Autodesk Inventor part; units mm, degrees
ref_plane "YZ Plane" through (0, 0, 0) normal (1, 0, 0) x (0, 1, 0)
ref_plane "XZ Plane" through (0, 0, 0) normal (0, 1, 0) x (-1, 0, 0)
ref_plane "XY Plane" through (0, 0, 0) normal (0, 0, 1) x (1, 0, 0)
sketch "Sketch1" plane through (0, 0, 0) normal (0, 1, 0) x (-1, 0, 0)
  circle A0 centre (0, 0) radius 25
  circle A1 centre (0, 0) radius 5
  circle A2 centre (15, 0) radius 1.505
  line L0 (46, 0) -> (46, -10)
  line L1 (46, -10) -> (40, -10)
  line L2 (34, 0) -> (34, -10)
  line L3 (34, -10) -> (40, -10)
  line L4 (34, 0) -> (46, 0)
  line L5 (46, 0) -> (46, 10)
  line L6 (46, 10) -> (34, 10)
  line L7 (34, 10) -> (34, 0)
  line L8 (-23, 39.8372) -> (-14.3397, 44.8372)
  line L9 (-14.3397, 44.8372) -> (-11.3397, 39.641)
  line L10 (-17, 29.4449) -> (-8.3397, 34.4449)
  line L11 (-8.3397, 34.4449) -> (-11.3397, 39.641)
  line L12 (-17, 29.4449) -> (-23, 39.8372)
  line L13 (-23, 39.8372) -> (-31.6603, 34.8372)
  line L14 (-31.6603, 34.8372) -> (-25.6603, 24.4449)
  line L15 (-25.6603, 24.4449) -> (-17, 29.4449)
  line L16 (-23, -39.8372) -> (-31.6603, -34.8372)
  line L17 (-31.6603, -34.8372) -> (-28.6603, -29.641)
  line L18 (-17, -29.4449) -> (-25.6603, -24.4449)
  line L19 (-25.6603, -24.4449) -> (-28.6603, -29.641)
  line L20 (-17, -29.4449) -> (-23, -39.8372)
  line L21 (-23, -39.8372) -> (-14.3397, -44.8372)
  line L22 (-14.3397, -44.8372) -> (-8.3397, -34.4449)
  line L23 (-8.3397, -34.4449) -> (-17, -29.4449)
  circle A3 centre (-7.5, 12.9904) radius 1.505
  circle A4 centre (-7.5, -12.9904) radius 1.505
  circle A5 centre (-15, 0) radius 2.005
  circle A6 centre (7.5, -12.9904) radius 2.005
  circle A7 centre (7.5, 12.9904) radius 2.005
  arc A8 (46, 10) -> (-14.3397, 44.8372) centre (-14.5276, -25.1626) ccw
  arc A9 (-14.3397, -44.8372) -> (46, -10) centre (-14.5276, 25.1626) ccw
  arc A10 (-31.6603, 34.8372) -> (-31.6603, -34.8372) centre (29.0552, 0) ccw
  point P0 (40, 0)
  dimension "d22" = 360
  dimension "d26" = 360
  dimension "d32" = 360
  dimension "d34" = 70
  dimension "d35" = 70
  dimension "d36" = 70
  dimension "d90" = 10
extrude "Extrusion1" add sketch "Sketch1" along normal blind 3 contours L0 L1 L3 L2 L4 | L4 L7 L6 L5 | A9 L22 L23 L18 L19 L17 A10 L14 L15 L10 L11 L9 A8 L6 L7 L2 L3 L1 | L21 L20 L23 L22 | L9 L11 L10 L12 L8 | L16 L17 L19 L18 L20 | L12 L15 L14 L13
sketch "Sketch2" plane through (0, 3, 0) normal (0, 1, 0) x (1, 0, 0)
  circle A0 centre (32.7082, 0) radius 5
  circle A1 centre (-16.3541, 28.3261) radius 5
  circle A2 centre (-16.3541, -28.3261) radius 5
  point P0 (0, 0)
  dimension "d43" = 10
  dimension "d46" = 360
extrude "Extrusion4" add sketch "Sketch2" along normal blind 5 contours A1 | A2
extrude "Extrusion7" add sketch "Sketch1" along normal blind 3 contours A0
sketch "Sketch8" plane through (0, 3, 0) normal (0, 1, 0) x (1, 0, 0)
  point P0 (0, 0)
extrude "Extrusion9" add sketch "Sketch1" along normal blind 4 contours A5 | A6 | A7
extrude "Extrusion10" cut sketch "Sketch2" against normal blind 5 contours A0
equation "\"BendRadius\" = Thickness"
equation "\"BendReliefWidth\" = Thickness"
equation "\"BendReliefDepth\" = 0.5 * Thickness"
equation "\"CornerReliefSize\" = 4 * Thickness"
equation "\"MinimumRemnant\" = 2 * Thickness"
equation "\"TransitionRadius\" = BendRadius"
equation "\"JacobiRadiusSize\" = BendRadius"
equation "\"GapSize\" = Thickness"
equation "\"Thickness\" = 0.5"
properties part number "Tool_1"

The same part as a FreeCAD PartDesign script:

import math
import FreeCAD as App
import Part
import Sketcher
Q = App.Units.Quantity

doc = App.newDocument("Part")
params = doc.addObject("Spreadsheet::Sheet", "Params")
for row, (alias, value) in enumerate([
    ("sketch1_radius", "70 mm"),
    ("sketch1_diameter", "50 mm"),
    ("pad1_length", "3 mm"),
    ("sketch2_diameter", "10 mm"),
    ("pad2_length", "5 mm"),
    ("sketch3_diameter", "10 mm"),
    ("sketch3_diameter2", "50 mm"),
    ("sketch3_diameter3", "3.01 mm"),
    ("sketch3_diameter4", "4.01 mm"),
    ("pad3_length", "3 mm"),
    ("sketch4_diameter", "4.01 mm"),
    ("pad4_length", "4 mm"),
    ("sketch5_diameter", "10 mm"),
    ("pocket1_length", "5 mm"),
], start=1):
    params.set(f"A{row}", alias)
    params.set(f"B{row}", "=" + value)
    params.setAlias(f"B{row}", alias)

body = doc.addObject("PartDesign::Body", "Body")

# Sketch on XZ plane
sketch1 = body.newObject("Sketcher::SketchObject", "Sketch")
sketch1.AttachmentSupport = (doc.getObject("XZ_Plane"), [""])
sketch1.MapMode = "FlatFace"
sketch1.addGeometry(Part.LineSegment(App.Vector(-46, -10, 0), App.Vector(-46, 10, 0)), False)
sketch1.addGeometry(Part.ArcOfCircle(Part.Circle(App.Vector(15, -25, 0), App.Vector(0, 0, 1), 70), math.radians(90), math.radians(150)), False)
sketch1.addGeometry(Part.LineSegment(App.Vector(14, 45, 0), App.Vector(32, 35, 0)), False)
sketch1.addGeometry(Part.ArcOfCircle(Part.Circle(App.Vector(-29, 0, 0), App.Vector(0, 0, 1), 70), math.radians(-30), math.radians(30)), False)
sketch1.addGeometry(Part.LineSegment(App.Vector(32, -35, 0), App.Vector(14, -45, 0)), False)
sketch1.addGeometry(Part.ArcOfCircle(Part.Circle(App.Vector(15, 25, 0), App.Vector(0, 0, 1), 70), math.radians(-150), math.radians(-90)), False)
sketch1.addGeometry(Part.Circle(App.Vector(0, 0, 0), App.Vector(0, 0, 1), 25), False)
sketch1.addConstraint(Sketcher.Constraint("Coincident", 0, 2, 1, 2))
sketch1.addConstraint(Sketcher.Constraint("Coincident", 1, 1, 2, 1))
sketch1.addConstraint(Sketcher.Constraint("Coincident", 2, 2, 3, 2))
sketch1.addConstraint(Sketcher.Constraint("Coincident", 3, 1, 4, 1))
sketch1.addConstraint(Sketcher.Constraint("Coincident", 4, 2, 5, 2))
sketch1.addConstraint(Sketcher.Constraint("Coincident", 5, 1, 0, 1))
sketch1.addConstraint(Sketcher.Constraint("Vertical", 0))
sketch1.addConstraint(Sketcher.Constraint("Coincident", 6, 3, -1, 1))
sketch1.addConstraint(Sketcher.Constraint("Equal", 1, 3))
sketch1.addConstraint(Sketcher.Constraint("Equal", 3, 5))
sketch1.addConstraint(Sketcher.Constraint("Symmetric", 1, 3, 5, 3, -1))
sketch1.addConstraint(Sketcher.Constraint("Symmetric", 2, 2, 3, 1, -1))
sketch1.addConstraint(Sketcher.Constraint("Vertical", 1, 1, 4, 2))
sketch1.addConstraint(Sketcher.Constraint("Radius", 1, Q("70 mm")))
sketch1.addConstraint(Sketcher.Constraint("Diameter", 6, Q("50 mm")))
sketch1.addConstraint(Sketcher.Constraint("DistanceY", -1, 1, 0, 2, Q("10 mm")))
sketch1.addConstraint(Sketcher.Constraint("DistanceY", 2, 2, 1, 1, Q("10 mm")))
sketch1.addConstraint(Sketcher.Constraint("Angle", 2, Q("-29.9999 deg")))
sketch1.addConstraint(Sketcher.Constraint("DistanceX", 0, 2, -1, 1, Q("46 mm")))
sketch1.addConstraint(Sketcher.Constraint("DistanceX", 1, 1, 5, 3, Q("0.188 mm")))
sketch1.addConstraint(Sketcher.Constraint("DistanceX", 3, 3, 1, 1, Q("43.395 mm")))
sketch1.setExpression("Constraints[13]", "Params.sketch1_radius")
sketch1.setExpression("Constraints[14]", "Params.sketch1_diameter")
pad1 = body.newObject("PartDesign::Pad", "Pad")
pad1.Profile = sketch1
pad1.setExpression("Length", "Params.pad1_length")
pad1.Reversed = True

# Sketch on XZ plane
sketch2 = body.newObject("Sketcher::SketchObject", "Sketch001")
sketch2.AttachmentSupport = (doc.getObject("XZ_Plane"), [""])
sketch2.MapMode = "FlatFace"
sketch2.AttachmentOffset = App.Placement(App.Vector(0, 0, -3), App.Rotation())
sketch2.addGeometry(Part.Circle(App.Vector(-16, -28, 0), App.Vector(0, 0, 1), 5), False)
sketch2.addGeometry(Part.Circle(App.Vector(-16, 28, 0), App.Vector(0, 0, 1), 5), False)
sketch2.addConstraint(Sketcher.Constraint("Equal", 0, 1))
sketch2.addConstraint(Sketcher.Constraint("Symmetric", 0, 3, 1, 3, -1))
sketch2.addConstraint(Sketcher.Constraint("Diameter", 0, Q("10 mm")))
sketch2.addConstraint(Sketcher.Constraint("DistanceX", 0, 3, -1, 1, Q("16.354 mm")))
sketch2.addConstraint(Sketcher.Constraint("DistanceY", 0, 3, -1, 1, Q("28.326 mm")))
sketch2.setExpression("Constraints[2]", "Params.sketch2_diameter")
pad2 = body.newObject("PartDesign::Pad", "Pad001")
pad2.Profile = sketch2
pad2.setExpression("Length", "Params.pad2_length")
pad2.Reversed = True

# Sketch on XZ plane
sketch3 = body.newObject("Sketcher::SketchObject", "Sketch002")
sketch3.AttachmentSupport = (doc.getObject("XZ_Plane"), [""])
sketch3.MapMode = "FlatFace"
sketch3.addGeometry(Part.Circle(App.Vector(0, 0, 0), App.Vector(0, 0, 1), 25), False)
sketch3.addGeometry(Part.Circle(App.Vector(7.5, -13, 0), App.Vector(0, 0, 1), 1.5), False)
sketch3.addGeometry(Part.Circle(App.Vector(-7.5, -13, 0), App.Vector(0, 0, 1), 2), False)
sketch3.addGeometry(Part.Circle(App.Vector(15, 0, 0), App.Vector(0, 0, 1), 2), False)
sketch3.addGeometry(Part.Circle(App.Vector(0, 0, 0), App.Vector(0, 0, 1), 5), False)
sketch3.addGeometry(Part.Circle(App.Vector(7.5, 13, 0), App.Vector(0, 0, 1), 1.5), False)
sketch3.addGeometry(Part.Circle(App.Vector(-15, 0, 0), App.Vector(0, 0, 1), 1.5), False)
sketch3.addGeometry(Part.Circle(App.Vector(-7.5, 13, 0), App.Vector(0, 0, 1), 2), False)
sketch3.addConstraint(Sketcher.Constraint("Coincident", 0, 3, -1, 1))
sketch3.addConstraint(Sketcher.Constraint("Coincident", 4, 3, -1, 1))
sketch3.addConstraint(Sketcher.Constraint("Equal", 2, 3))
sketch3.addConstraint(Sketcher.Constraint("Equal", 1, 5))
sketch3.addConstraint(Sketcher.Constraint("Equal", 5, 6))
sketch3.addConstraint(Sketcher.Constraint("Equal", 3, 7))
sketch3.addConstraint(Sketcher.Constraint("Symmetric", 2, 3, 5, 3, -1, 1))
sketch3.addConstraint(Sketcher.Constraint("Symmetric", 3, 3, 6, 3, -1, 1))
sketch3.addConstraint(Sketcher.Constraint("Symmetric", 1, 3, 7, 3, -1, 1))
sketch3.addConstraint(Sketcher.Constraint("Symmetric", 1, 3, 2, 3, -2))
sketch3.addConstraint(Sketcher.Constraint("PointOnObject", 3, 3, -1))
sketch3.addConstraint(Sketcher.Constraint("Diameter", 4, Q("10 mm")))
sketch3.addConstraint(Sketcher.Constraint("Diameter", 0, Q("50 mm")))
sketch3.addConstraint(Sketcher.Constraint("Diameter", 1, Q("3.01 mm")))
sketch3.addConstraint(Sketcher.Constraint("Diameter", 2, Q("4.01 mm")))
sketch3.addConstraint(Sketcher.Constraint("DistanceX", -1, 1, 3, 3, Q("15 mm")))
sketch3.addConstraint(Sketcher.Constraint("DistanceX", 2, 3, 1, 3, Q("15 mm")))
sketch3.addConstraint(Sketcher.Constraint("DistanceY", 1, 3, -1, 1, Q("12.9904 mm")))
sketch3.setExpression("Constraints[11]", "Params.sketch3_diameter")
sketch3.setExpression("Constraints[12]", "Params.sketch3_diameter2")
sketch3.setExpression("Constraints[13]", "Params.sketch3_diameter3")
sketch3.setExpression("Constraints[14]", "Params.sketch3_diameter4")
pad3 = body.newObject("PartDesign::Pad", "Pad002")
pad3.Profile = sketch3
pad3.setExpression("Length", "Params.pad3_length")
pad3.Reversed = True

# Sketch on XZ plane
sketch4 = body.newObject("Sketcher::SketchObject", "Sketch003")
sketch4.AttachmentSupport = (doc.getObject("XZ_Plane"), [""])
sketch4.MapMode = "FlatFace"
sketch4.addGeometry(Part.Circle(App.Vector(15, 0, 0), App.Vector(0, 0, 1), 2), False)
sketch4.addGeometry(Part.Circle(App.Vector(-7.5, -13, 0), App.Vector(0, 0, 1), 2), False)
sketch4.addGeometry(Part.Circle(App.Vector(-7.5, 13, 0), App.Vector(0, 0, 1), 2), False)
sketch4.addConstraint(Sketcher.Constraint("Equal", 0, 1))
sketch4.addConstraint(Sketcher.Constraint("Equal", 1, 2))
sketch4.addConstraint(Sketcher.Constraint("Symmetric", 1, 3, 2, 3, -1))
sketch4.addConstraint(Sketcher.Constraint("PointOnObject", 0, 3, -1))
sketch4.addConstraint(Sketcher.Constraint("Diameter", 0, Q("4.01 mm")))
sketch4.addConstraint(Sketcher.Constraint("DistanceX", -1, 1, 0, 3, Q("15 mm")))
sketch4.addConstraint(Sketcher.Constraint("DistanceX", 1, 3, -1, 1, Q("7.5 mm")))
sketch4.addConstraint(Sketcher.Constraint("DistanceY", 1, 3, -1, 1, Q("12.9904 mm")))
sketch4.setExpression("Constraints[4]", "Params.sketch4_diameter")
pad4 = body.newObject("PartDesign::Pad", "Pad003")
pad4.Profile = sketch4
pad4.setExpression("Length", "Params.pad4_length")
pad4.Reversed = True

# Sketch on XZ plane
sketch5 = body.newObject("Sketcher::SketchObject", "Sketch004")
sketch5.AttachmentSupport = (doc.getObject("XZ_Plane"), [""])
sketch5.MapMode = "FlatFace"
sketch5.AttachmentOffset = App.Placement(App.Vector(0, 0, -3), App.Rotation())
sketch5.addGeometry(Part.Circle(App.Vector(33, 0, 0), App.Vector(0, 0, 1), 5), False)
sketch5.addConstraint(Sketcher.Constraint("PointOnObject", 0, 3, -1))
sketch5.addConstraint(Sketcher.Constraint("Diameter", 0, Q("10 mm")))
sketch5.addConstraint(Sketcher.Constraint("DistanceX", -1, 1, 0, 3, Q("32.7082 mm")))
sketch5.setExpression("Constraints[1]", "Params.sketch5_diameter")
pocket1 = body.newObject("PartDesign::Pocket", "Pocket")
pocket1.Profile = sketch5
pocket1.setExpression("Length", "Params.pocket1_length")
pocket1.Reversed = True

doc.recompute()
